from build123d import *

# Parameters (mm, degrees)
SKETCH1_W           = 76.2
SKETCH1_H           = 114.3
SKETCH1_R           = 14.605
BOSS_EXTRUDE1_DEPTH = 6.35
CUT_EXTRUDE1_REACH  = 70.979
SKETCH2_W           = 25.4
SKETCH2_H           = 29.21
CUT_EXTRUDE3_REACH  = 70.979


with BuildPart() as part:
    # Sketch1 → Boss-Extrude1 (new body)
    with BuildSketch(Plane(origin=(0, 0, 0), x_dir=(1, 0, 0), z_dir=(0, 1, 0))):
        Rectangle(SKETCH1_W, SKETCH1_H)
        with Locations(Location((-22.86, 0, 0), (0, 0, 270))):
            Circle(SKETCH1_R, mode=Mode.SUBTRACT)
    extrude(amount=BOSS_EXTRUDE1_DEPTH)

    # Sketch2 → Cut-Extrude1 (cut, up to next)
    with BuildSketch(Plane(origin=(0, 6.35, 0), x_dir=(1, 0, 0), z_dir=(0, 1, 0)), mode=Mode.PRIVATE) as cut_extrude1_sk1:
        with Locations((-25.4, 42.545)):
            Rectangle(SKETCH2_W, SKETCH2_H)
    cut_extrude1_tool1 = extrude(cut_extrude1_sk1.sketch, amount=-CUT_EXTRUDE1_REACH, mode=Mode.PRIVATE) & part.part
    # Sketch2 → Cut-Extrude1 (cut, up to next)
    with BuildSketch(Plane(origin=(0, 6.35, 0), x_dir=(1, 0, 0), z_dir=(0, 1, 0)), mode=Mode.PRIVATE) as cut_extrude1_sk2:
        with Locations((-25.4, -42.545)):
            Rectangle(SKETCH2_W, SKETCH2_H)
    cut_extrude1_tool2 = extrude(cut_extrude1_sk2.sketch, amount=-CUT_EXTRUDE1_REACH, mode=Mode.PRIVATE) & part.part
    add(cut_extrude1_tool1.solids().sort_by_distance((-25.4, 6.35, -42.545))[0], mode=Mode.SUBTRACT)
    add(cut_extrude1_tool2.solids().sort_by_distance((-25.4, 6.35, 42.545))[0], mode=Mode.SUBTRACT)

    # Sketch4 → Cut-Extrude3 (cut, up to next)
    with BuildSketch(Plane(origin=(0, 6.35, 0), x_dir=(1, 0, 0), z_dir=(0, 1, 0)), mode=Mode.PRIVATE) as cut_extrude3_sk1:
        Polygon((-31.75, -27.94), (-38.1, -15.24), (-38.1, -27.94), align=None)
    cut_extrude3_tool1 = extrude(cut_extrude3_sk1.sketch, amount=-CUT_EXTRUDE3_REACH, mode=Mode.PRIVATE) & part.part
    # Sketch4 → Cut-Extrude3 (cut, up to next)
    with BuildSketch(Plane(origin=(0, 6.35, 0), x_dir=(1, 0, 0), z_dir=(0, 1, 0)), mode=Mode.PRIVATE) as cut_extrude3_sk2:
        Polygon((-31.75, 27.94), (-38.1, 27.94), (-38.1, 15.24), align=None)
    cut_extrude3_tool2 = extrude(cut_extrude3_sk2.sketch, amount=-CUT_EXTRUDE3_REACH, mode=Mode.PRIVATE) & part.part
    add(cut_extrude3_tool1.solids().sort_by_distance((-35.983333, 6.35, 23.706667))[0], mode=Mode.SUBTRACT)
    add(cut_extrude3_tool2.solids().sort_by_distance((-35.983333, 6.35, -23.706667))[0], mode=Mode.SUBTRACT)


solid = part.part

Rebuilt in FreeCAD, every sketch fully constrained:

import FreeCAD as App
import Part
import Sketcher

V = App.Vector
Q = App.Units.Quantity


def add_polygon(sketch, points):
    """Adds a closed chain of lines whose ends are joined by coincident constraints."""
    first, n = sketch.GeometryCount, len(points)
    for a, b in zip(points, points[1:] + points[:1]):
        sketch.addGeometry(Part.LineSegment(App.Vector(*a, 0), App.Vector(*b, 0)), False)
    for i in range(n):
        sketch.addConstraint(Sketcher.Constraint("Coincident", first + i, 2, first + (i + 1) % n, 1))

doc = App.newDocument("Part")
body = doc.addObject("PartDesign::Body", "Body")

# Sketch on XZ plane
sketch1 = body.newObject("Sketcher::SketchObject", "Sketch")
sketch1.AttachmentSupport = (doc.getObject("XZ_Plane"), [""])
sketch1.MapMode = "FlatFace"
add_polygon(sketch1, [(-38, -57), (-38, 57), (38, 57), (38, -57)])  # lines 0-3
sketch1.addGeometry(Part.Circle(V(-23, 0, 0), V(0, 0, 1), 15), False)  # 4
sketch1.addConstraint(Sketcher.Constraint("Vertical", 0))
sketch1.addConstraint(Sketcher.Constraint("Horizontal", 1))
sketch1.addConstraint(Sketcher.Constraint("Vertical", 2))
sketch1.addConstraint(Sketcher.Constraint("Horizontal", 3))
sketch1.addConstraint(Sketcher.Constraint("Symmetric", 0, 2, 2, 2, -1, 1))
sketch1.addConstraint(Sketcher.Constraint("PointOnObject", 4, 3, -1))
sketch1.addConstraint(Sketcher.Constraint("Diameter", 4, Q("1.15 in")))
sketch1.addConstraint(Sketcher.Constraint("DistanceX", 1, 1, 1, 2, Q("3 in")))
sketch1.addConstraint(Sketcher.Constraint("DistanceY", 0, 1, 0, 2, Q("4.5 in")))
sketch1.addConstraint(Sketcher.Constraint("DistanceX", 4, 3, -1, 1, Q("0.9 in")))
pad1 = body.newObject("PartDesign::Pad", "Pad")
pad1.Profile = sketch1
pad1.Length = Q("0.25 in")
pad1.Reversed = True

# Sketch on XZ plane
sketch2 = body.newObject("Sketcher::SketchObject", "Sketch001")
sketch2.AttachmentSupport = (doc.getObject("XZ_Plane"), [""])
sketch2.MapMode = "FlatFace"
sketch2.AttachmentOffset = App.Placement(V(0, 0, -0.25 * 25.4), App.Rotation())
add_polygon(sketch2, [(-38, -57), (-38, -28), (-13, -28), (-13, -57)])  # lines 0-3
sketch2.addConstraint(Sketcher.Constraint("Vertical", 0))
sketch2.addConstraint(Sketcher.Constraint("Horizontal", 1))
sketch2.addConstraint(Sketcher.Constraint("Vertical", 2))
sketch2.addConstraint(Sketcher.Constraint("Horizontal", 3))
sketch2.addConstraint(Sketcher.Constraint("DistanceX", 1, 1, 1, 2, Q("1 in")))
sketch2.addConstraint(Sketcher.Constraint("DistanceY", 0, 1, 0, 2, Q("1.15 in")))
sketch2.addConstraint(Sketcher.Constraint("DistanceX", 0, 2, -1, 1, Q("1.5 in")))
sketch2.addConstraint(Sketcher.Constraint("DistanceY", 0, 2, -1, 1, Q("1.1 in")))
pocket1 = body.newObject("PartDesign::Pocket", "Pocket")
pocket1.Profile = sketch2
pocket1.Type = "UpToFirst"
pocket1.Reversed = True

# Sketch on XZ plane
sketch3 = body.newObject("Sketcher::SketchObject", "Sketch002")
sketch3.AttachmentSupport = (doc.getObject("XZ_Plane"), [""])
sketch3.MapMode = "FlatFace"
sketch3.AttachmentOffset = App.Placement(V(0, 0, -0.25 * 25.4), App.Rotation())
add_polygon(sketch3, [(-38, 28), (-38, 57), (-13, 57), (-13, 28)])  # lines 0-3
sketch3.addConstraint(Sketcher.Constraint("Vertical", 0))
sketch3.addConstraint(Sketcher.Constraint("Horizontal", 1))
sketch3.addConstraint(Sketcher.Constraint("Vertical", 2))
sketch3.addConstraint(Sketcher.Constraint("Horizontal", 3))
sketch3.addConstraint(Sketcher.Constraint("DistanceX", 1, 1, 1, 2, Q("1 in")))
sketch3.addConstraint(Sketcher.Constraint("DistanceY", 0, 1, 0, 2, Q("1.15 in")))
sketch3.addConstraint(Sketcher.Constraint("DistanceX", 0, 2, -1, 1, Q("1.5 in")))
sketch3.addConstraint(Sketcher.Constraint("DistanceY", -1, 1, 2, 2, Q("1.1 in")))
pocket2 = body.newObject("PartDesign::Pocket", "Pocket001")
pocket2.Profile = sketch3
pocket2.Type = "UpToFirst"
pocket2.Reversed = True

# Sketch on XZ plane
sketch4 = body.newObject("Sketcher::SketchObject", "Sketch003")
sketch4.AttachmentSupport = (doc.getObject("XZ_Plane"), [""])
sketch4.MapMode = "FlatFace"
sketch4.AttachmentOffset = App.Placement(V(0, 0, -0.25 * 25.4), App.Rotation())
add_polygon(sketch4, [(-32, 28), (-38, 15), (-38, 28)])  # lines 0-2
sketch4.addConstraint(Sketcher.Constraint("Vertical", 1))
sketch4.addConstraint(Sketcher.Constraint("Horizontal", 2))
sketch4.addConstraint(Sketcher.Constraint("DistanceY", 1, 1, 1, 2, Q("0.5 in")))
sketch4.addConstraint(Sketcher.Constraint("DistanceX", 2, 1, 2, 2, Q("0.25 in")))
sketch4.addConstraint(Sketcher.Constraint("DistanceX", 0, 2, -1, 1, Q("1.5 in")))
sketch4.addConstraint(Sketcher.Constraint("DistanceY", -1, 1, 0, 2, Q("0.6 in")))
pocket3 = body.newObject("PartDesign::Pocket", "Pocket002")
pocket3.Profile = sketch4
pocket3.Type = "UpToFirst"
pocket3.Reversed = True

# Sketch on XZ plane
sketch5 = body.newObject("Sketcher::SketchObject", "Sketch004")
sketch5.AttachmentSupport = (doc.getObject("XZ_Plane"), [""])
sketch5.MapMode = "FlatFace"
sketch5.AttachmentOffset = App.Placement(V(0, 0, -0.25 * 25.4), App.Rotation())
add_polygon(sketch5, [(-32, -28), (-38, -28), (-38, -15)])  # lines 0-2
sketch5.addConstraint(Sketcher.Constraint("Horizontal", 0))
sketch5.addConstraint(Sketcher.Constraint("Vertical", 1))
sketch5.addConstraint(Sketcher.Constraint("DistanceY", 1, 1, 1, 2, Q("0.5 in")))
sketch5.addConstraint(Sketcher.Constraint("DistanceX", 0, 2, 0, 1, Q("0.25 in")))
sketch5.addConstraint(Sketcher.Constraint("DistanceX", 0, 2, -1, 1, Q("1.5 in")))
sketch5.addConstraint(Sketcher.Constraint("DistanceY", 0, 2, -1, 1, Q("1.1 in")))
pocket4 = body.newObject("PartDesign::Pocket", "Pocket003")
pocket4.Profile = sketch5
pocket4.Type = "UpToFirst"
pocket4.Reversed = True

doc.recompute()
